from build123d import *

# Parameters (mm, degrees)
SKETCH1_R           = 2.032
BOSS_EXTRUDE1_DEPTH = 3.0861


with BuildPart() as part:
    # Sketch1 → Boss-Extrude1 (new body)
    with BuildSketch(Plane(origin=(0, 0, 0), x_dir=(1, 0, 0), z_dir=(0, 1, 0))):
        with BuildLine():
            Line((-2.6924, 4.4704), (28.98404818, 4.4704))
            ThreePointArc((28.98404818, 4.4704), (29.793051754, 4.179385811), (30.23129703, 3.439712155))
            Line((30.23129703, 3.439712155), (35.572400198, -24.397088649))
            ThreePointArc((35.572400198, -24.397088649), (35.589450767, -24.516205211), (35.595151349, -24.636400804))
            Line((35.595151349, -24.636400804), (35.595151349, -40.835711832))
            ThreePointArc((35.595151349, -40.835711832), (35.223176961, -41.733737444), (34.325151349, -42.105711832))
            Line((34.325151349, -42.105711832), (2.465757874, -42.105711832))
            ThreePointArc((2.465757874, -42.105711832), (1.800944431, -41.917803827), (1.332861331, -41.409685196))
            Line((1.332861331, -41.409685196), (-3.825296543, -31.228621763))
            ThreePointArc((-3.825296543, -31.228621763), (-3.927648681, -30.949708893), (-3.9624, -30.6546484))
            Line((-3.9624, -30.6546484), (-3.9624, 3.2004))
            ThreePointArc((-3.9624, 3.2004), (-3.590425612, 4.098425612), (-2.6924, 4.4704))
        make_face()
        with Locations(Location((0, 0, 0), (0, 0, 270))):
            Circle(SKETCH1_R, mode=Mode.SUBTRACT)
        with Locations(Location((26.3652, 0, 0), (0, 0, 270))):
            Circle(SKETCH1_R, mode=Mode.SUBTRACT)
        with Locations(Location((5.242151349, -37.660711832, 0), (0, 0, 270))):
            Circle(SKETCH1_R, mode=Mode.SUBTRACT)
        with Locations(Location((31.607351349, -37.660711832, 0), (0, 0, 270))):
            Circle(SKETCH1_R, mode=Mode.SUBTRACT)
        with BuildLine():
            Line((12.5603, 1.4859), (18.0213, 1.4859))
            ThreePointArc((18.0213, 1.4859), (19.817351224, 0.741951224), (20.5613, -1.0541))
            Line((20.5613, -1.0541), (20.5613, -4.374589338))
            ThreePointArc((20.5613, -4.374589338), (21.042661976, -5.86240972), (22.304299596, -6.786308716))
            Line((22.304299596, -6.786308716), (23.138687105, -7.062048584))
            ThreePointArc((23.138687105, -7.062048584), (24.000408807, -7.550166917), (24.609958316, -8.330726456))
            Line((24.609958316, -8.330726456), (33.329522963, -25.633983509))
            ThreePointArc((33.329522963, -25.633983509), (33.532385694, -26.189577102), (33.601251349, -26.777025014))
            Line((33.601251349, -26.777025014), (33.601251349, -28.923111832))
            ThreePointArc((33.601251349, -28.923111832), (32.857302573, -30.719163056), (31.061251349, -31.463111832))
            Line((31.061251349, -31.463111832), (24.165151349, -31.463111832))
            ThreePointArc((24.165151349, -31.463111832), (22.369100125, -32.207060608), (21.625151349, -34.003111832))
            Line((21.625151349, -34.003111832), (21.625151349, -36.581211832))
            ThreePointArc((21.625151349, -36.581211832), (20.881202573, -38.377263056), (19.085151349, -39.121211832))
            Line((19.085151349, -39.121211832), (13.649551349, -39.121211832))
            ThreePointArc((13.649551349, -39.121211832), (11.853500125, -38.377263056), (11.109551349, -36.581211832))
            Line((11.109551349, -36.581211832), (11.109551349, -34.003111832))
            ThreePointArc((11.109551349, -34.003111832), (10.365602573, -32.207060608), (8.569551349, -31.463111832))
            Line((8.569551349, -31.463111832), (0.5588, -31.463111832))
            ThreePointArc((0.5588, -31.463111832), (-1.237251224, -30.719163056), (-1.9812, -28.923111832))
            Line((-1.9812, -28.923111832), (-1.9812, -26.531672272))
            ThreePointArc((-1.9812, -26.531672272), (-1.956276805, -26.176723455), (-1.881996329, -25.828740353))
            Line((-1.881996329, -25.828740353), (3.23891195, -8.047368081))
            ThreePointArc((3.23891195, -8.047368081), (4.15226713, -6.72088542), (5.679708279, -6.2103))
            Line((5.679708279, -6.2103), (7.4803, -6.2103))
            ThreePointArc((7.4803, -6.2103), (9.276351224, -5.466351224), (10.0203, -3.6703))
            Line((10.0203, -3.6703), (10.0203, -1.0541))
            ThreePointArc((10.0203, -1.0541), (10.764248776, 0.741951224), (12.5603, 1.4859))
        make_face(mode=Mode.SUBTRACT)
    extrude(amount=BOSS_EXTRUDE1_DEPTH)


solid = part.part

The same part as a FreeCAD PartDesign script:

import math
import FreeCAD as App
import Part
import Sketcher
Q = App.Units.Quantity

doc = App.newDocument("Part")
body = doc.addObject("PartDesign::Body", "Body")

# Sketch on XZ plane
sketch1 = doc.addObject("Sketcher::SketchObject", "Sketch")
body.addObject(sketch1)
sketch1.AttachmentSupport = (doc.XZ_Plane, [""])
sketch1.MapMode = "FlatFace"
sketch1.addGeometry([
    Part.LineSegment(App.Vector(28.98, -4.47, 0), App.Vector(-2.69, -4.47, 0)),  # 0
    Part.ArcOfCircle(Part.Circle(App.Vector(-2.69, -3.2, 0), App.Vector(0, 0, 1), 1.27), math.radians(180), math.radians(270)),  # 1
    Part.LineSegment(App.Vector(-3.96, -3.2, 0), App.Vector(-3.96, 30.65, 0)),  # 2
    Part.ArcOfCircle(Part.Circle(App.Vector(-2.69, 30.65, 0), App.Vector(0, 0, 1), 1.27), math.radians(153), math.radians(180)),  # 3
    Part.LineSegment(App.Vector(-3.83, 31.23, 0), App.Vector(1.33, 41.41, 0)),  # 4
    Part.ArcOfCircle(Part.Circle(App.Vector(2.47, 40.84, 0), App.Vector(0, 0, 1), 1.27), math.radians(90), math.radians(153)),  # 5
    Part.LineSegment(App.Vector(2.47, 42.11, 0), App.Vector(34.33, 42.11, 0)),  # 6
    Part.ArcOfCircle(Part.Circle(App.Vector(34.33, 40.84, 0), App.Vector(0, 0, 1), 1.27), math.radians(0), math.radians(90)),  # 7
    Part.LineSegment(App.Vector(35.6, 40.84, 0), App.Vector(35.6, 24.64, 0)),  # 8
    Part.ArcOfCircle(Part.Circle(App.Vector(34.33, 24.64, 0), App.Vector(0, 0, 1), 1.27), math.radians(-10.86), math.radians(0)),  # 9
    Part.LineSegment(App.Vector(35.57, 24.4, 0), App.Vector(30.23, -3.44, 0)),  # 10
    Part.ArcOfCircle(Part.Circle(App.Vector(28.98, -3.2, 0), App.Vector(0, 0, 1), 1.27), math.radians(-90), math.radians(-11)),  # 11
    Part.Circle(App.Vector(31.61, 37.66, 0), App.Vector(0, 0, 1), 2.03),  # 12
    Part.Circle(App.Vector(5.24, 37.66, 0), App.Vector(0, 0, 1), 2.03),  # 13
    Part.LineSegment(App.Vector(12.56, -1.49, 0), App.Vector(18.02, -1.49, 0)),  # 14
    Part.ArcOfCircle(Part.Circle(App.Vector(18.02, 1.05, 0), App.Vector(0, 0, 1), 2.54), math.radians(-90), math.radians(0)),  # 15
    Part.LineSegment(App.Vector(20.56, 1.05, 0), App.Vector(20.56, 4.37, 0)),  # 16
    Part.ArcOfCircle(Part.Circle(App.Vector(23.1, 4.37, 0), App.Vector(0, 0, 1), 2.54), math.radians(108), math.radians(180)),  # 17
    Part.LineSegment(App.Vector(22.3, 6.79, 0), App.Vector(23.14, 7.06, 0)),  # 18
    Part.ArcOfCircle(Part.Circle(App.Vector(22.34, 9.47, 0), App.Vector(0, 0, 1), 2.54), math.radians(-72), math.radians(-27)),  # 19
    Part.LineSegment(App.Vector(24.61, 8.33, 0), App.Vector(33.33, 25.63, 0)),  # 20
    Part.ArcOfCircle(Part.Circle(App.Vector(31.06, 26.78, 0), App.Vector(0, 0, 1), 2.54), math.radians(-27), math.radians(0)),  # 21
    Part.LineSegment(App.Vector(33.6, 26.78, 0), App.Vector(33.6, 28.92, 0)),  # 22
    Part.ArcOfCircle(Part.Circle(App.Vector(31.06, 28.92, 0), App.Vector(0, 0, 1), 2.54), math.radians(0), math.radians(90)),  # 23
    Part.LineSegment(App.Vector(31.06, 31.46, 0), App.Vector(24.17, 31.46, 0)),  # 24
    Part.ArcOfCircle(Part.Circle(App.Vector(24.17, 34, 0), App.Vector(0, 0, 1), 2.54), math.radians(-180), math.radians(-90)),  # 25
    Part.LineSegment(App.Vector(21.63, 34, 0), App.Vector(21.63, 36.58, 0)),  # 26
    Part.ArcOfCircle(Part.Circle(App.Vector(19.09, 36.58, 0), App.Vector(0, 0, 1), 2.54), math.radians(0), math.radians(90)),  # 27
    Part.LineSegment(App.Vector(19.09, 39.12, 0), App.Vector(13.65, 39.12, 0)),  # 28
    Part.ArcOfCircle(Part.Circle(App.Vector(13.65, 36.58, 0), App.Vector(0, 0, 1), 2.54), math.radians(90), math.radians(180)),  # 29
    Part.LineSegment(App.Vector(11.11, 36.58, 0), App.Vector(11.11, 34, 0)),  # 30
    Part.ArcOfCircle(Part.Circle(App.Vector(8.57, 34, 0), App.Vector(0, 0, 1), 2.54), math.radians(-90), math.radians(0)),  # 31
    Part.LineSegment(App.Vector(8.57, 31.46, 0), App.Vector(0.56, 31.46, 0)),  # 32
    Part.ArcOfCircle(Part.Circle(App.Vector(0.56, 28.92, 0), App.Vector(0, 0, 1), 2.54), math.radians(90), math.radians(180)),  # 33
    Part.LineSegment(App.Vector(-1.98, 28.92, 0), App.Vector(-1.98, 26.53, 0)),  # 34
    Part.ArcOfCircle(Part.Circle(App.Vector(0.56, 26.53, 0), App.Vector(0, 0, 1), 2.54), math.radians(-180), math.radians(-163.93)),  # 35
    Part.LineSegment(App.Vector(-1.88, 25.83, 0), App.Vector(3.24, 8.05, 0)),  # 36
    Part.ArcOfCircle(Part.Circle(App.Vector(5.68, 8.75, 0), App.Vector(0, 0, 1), 2.54), math.radians(-164), math.radians(-90)),  # 37
    Part.LineSegment(App.Vector(5.68, 6.21, 0), App.Vector(7.48, 6.21, 0)),  # 38
    Part.ArcOfCircle(Part.Circle(App.Vector(7.48, 3.67, 0), App.Vector(0, 0, 1), 2.54), math.radians(0), math.radians(90)),  # 39
    Part.LineSegment(App.Vector(10.02, 3.67, 0), App.Vector(10.02, 1.05, 0)),  # 40
    Part.ArcOfCircle(Part.Circle(App.Vector(12.56, 1.05, 0), App.Vector(0, 0, 1), 2.54), math.radians(-180), math.radians(-90)),  # 41
    Part.Circle(App.Vector(26.37, 0, 0), App.Vector(0, 0, 1), 2.03),  # 42
    Part.Circle(App.Vector(0, 0, 0), App.Vector(0, 0, 1), 2.03),  # 43
], False)
sketch1.addConstraint([
    Sketcher.Constraint("Tangent", 0, 2, 1, 2),
    Sketcher.Constraint("Tangent", 1, 1, 2, 1),
    Sketcher.Constraint("Tangent", 2, 2, 3, 2),
    Sketcher.Constraint("Tangent", 3, 1, 4, 1),
    Sketcher.Constraint("Tangent", 4, 2, 5, 2),
    Sketcher.Constraint("Tangent", 5, 1, 6, 1),
    Sketcher.Constraint("Tangent", 6, 2, 7, 2),
    Sketcher.Constraint("Tangent", 7, 1, 8, 1),
    Sketcher.Constraint("Tangent", 8, 2, 9, 2),
    Sketcher.Constraint("Tangent", 9, 1, 10, 1),
    Sketcher.Constraint("Tangent", 10, 2, 11, 2),
    Sketcher.Constraint("Tangent", 11, 1, 0, 1),
    Sketcher.Constraint("Tangent", 14, 2, 15, 1),
    Sketcher.Constraint("Tangent", 15, 2, 16, 1),
    Sketcher.Constraint("Tangent", 16, 2, 17, 2),
    Sketcher.Constraint("Tangent", 17, 1, 18, 1),
    Sketcher.Constraint("Tangent", 18, 2, 19, 1),
    Sketcher.Constraint("Tangent", 19, 2, 20, 1),
    Sketcher.Constraint("Tangent", 20, 2, 21, 1),
    Sketcher.Constraint("Tangent", 21, 2, 22, 1),
    Sketcher.Constraint("Tangent", 22, 2, 23, 1),
    Sketcher.Constraint("Tangent", 23, 2, 24, 1),
    Sketcher.Constraint("Tangent", 24, 2, 25, 2),
    Sketcher.Constraint("Tangent", 25, 1, 26, 1),
    Sketcher.Constraint("Tangent", 26, 2, 27, 1),
    Sketcher.Constraint("Tangent", 27, 2, 28, 1),
    Sketcher.Constraint("Tangent", 28, 2, 29, 1),
    Sketcher.Constraint("Tangent", 29, 2, 30, 1),
    Sketcher.Constraint("Tangent", 30, 2, 31, 2),
    Sketcher.Constraint("Tangent", 31, 1, 32, 1),
    Sketcher.Constraint("Tangent", 32, 2, 33, 1),
    Sketcher.Constraint("Tangent", 33, 2, 34, 1),
    Sketcher.Constraint("Tangent", 34, 2, 35, 1),
    Sketcher.Constraint("Tangent", 35, 2, 36, 1),
    Sketcher.Constraint("Tangent", 36, 2, 37, 1),
    Sketcher.Constraint("Tangent", 37, 2, 38, 1),
    Sketcher.Constraint("Tangent", 38, 2, 39, 2),
    Sketcher.Constraint("Tangent", 39, 1, 40, 1),
    Sketcher.Constraint("Tangent", 40, 2, 41, 1),
    Sketcher.Constraint("Tangent", 41, 2, 14, 1),
    Sketcher.Constraint("Horizontal", 0),
    Sketcher.Constraint("Vertical", 2),
    Sketcher.Constraint("Horizontal", 6),
    Sketcher.Constraint("Vertical", 8),
    Sketcher.Constraint("Horizontal", 14),
    Sketcher.Constraint("Vertical", 16),
    Sketcher.Constraint("Vertical", 22),
    Sketcher.Constraint("Horizontal", 24),
    Sketcher.Constraint("Vertical", 26),
    Sketcher.Constraint("Horizontal", 28),
    Sketcher.Constraint("Vertical", 30),
    Sketcher.Constraint("Horizontal", 32),
    Sketcher.Constraint("Vertical", 34),
    Sketcher.Constraint("Horizontal", 38),
    Sketcher.Constraint("Vertical", 40),
    Sketcher.Constraint("Coincident", 43, 3, -1, 1),
    Sketcher.Constraint("Equal", 1, 3),
    Sketcher.Constraint("Equal", 3, 5),
    Sketcher.Constraint("Equal", 5, 7),
    Sketcher.Constraint("Equal", 7, 9),
    Sketcher.Constraint("Equal", 9, 11),
    Sketcher.Constraint("Equal", 12, 13),
    Sketcher.Constraint("Equal", 15, 17),
    Sketcher.Constraint("Equal", 17, 19),
    Sketcher.Constraint("Equal", 19, 21),
    Sketcher.Constraint("Equal", 21, 23),
    Sketcher.Constraint("Equal", 23, 25),
    Sketcher.Constraint("Equal", 25, 27),
    Sketcher.Constraint("Equal", 27, 29),
    Sketcher.Constraint("Equal", 29, 31),
    Sketcher.Constraint("Equal", 31, 33),
    Sketcher.Constraint("Equal", 33, 35),
    Sketcher.Constraint("Equal", 35, 37),
    Sketcher.Constraint("Equal", 37, 39),
    Sketcher.Constraint("Equal", 39, 41),
    Sketcher.Constraint("Equal", 13, 42),
    Sketcher.Constraint("Equal", 42, 43),
    Sketcher.Constraint("PointOnObject", 42, 3, -1),
    Sketcher.Constraint("Horizontal", 12, 3, 13, 3),
    Sketcher.Constraint("Horizontal", 25, 3, 31, 3),
    Sketcher.Constraint("Radius", 15, Q("0.1 in")),
    Sketcher.Constraint("Diameter", 12, Q("0.16 in")),
    Sketcher.Constraint("Radius", 1, Q("0.05 in")),
    Sketcher.Constraint("DistanceX", 14, 1, 14, 2, Q("0.215 in")),
    Sketcher.Constraint("DistanceX", 28, 2, 28, 1, Q("0.214 in")),
    Sketcher.Constraint("DistanceY", 40, 2, 40, 1, Q("0.103 in")),
    Sketcher.Constraint("DistanceX", 24, 2, 24, 1, Q("0.2715 in")),
    Sketcher.Constraint("DistanceY", 26, 1, 26, 2, Q("0.1015 in")),
    Sketcher.Constraint("DistanceX", 1, 3, -1, 1, Q("0.106 in")),
    Sketcher.Constraint("DistanceY", 1, 3, -1, 1, Q("0.126 in")),
    Sketcher.Constraint("DistanceX", -1, 1, 33, 3, Q("0.022 in")),
    Sketcher.Constraint("DistanceX", -1, 1, 42, 3, Q("1.038 in")),
    Sketcher.Constraint("DistanceX", -1, 1, 15, 3, Q("0.7095 in")),
    Sketcher.Constraint("DistanceY", -1, 1, 15, 3, Q("0.0415 in")),
    Sketcher.Constraint("DistanceX", 0, 2, 0, 1, 31.676448),
    Sketcher.Constraint("DistanceX", 32, 2, 32, 1, 8.010751),
    Sketcher.Constraint("DistanceX", 38, 1, 38, 2, 1.800592),
    Sketcher.Constraint("DistanceY", 2, 1, 2, 2, 33.855048),
    Sketcher.Constraint("DistanceY", 8, 2, 8, 1, 16.199311),
    Sketcher.Constraint("DistanceY", 16, 1, 16, 2, 3.320489),
    Sketcher.Constraint("DistanceY", 34, 2, 34, 1, 2.39144),
    Sketcher.Constraint("DistanceY", -1, 1, 9, 3, 24.636401),
    Sketcher.Constraint("DistanceX", -1, 1, 9, 1, 35.5724),
    Sketcher.Constraint("DistanceX", -1, 1, 17, 1, 22.3043),
    Sketcher.Constraint("Distance", 4, 11.413179),
    Sketcher.Constraint("Distance", 18, 0.878769),
    Sketcher.Constraint("DistanceY", 22, 1, 22, 2, 2.146087),
    Sketcher.Constraint("DistanceX", -1, 1, 12, 3, 31.607351),
    Sketcher.Constraint("DistanceY", -1, 1, 12, 3, 37.660712),
    Sketcher.Constraint("DistanceX", -1, 1, 13, 3, 5.242151),
    Sketcher.Constraint("DistanceY", -1, 1, 23, 3, 28.923112),
])
pad1 = doc.addObject("PartDesign::Pad", "Pad")
body.addObject(pad1)
pad1.Profile = sketch1
pad1.Length = Q("0.1215 in")
pad1.Reversed = True

doc.recompute()
